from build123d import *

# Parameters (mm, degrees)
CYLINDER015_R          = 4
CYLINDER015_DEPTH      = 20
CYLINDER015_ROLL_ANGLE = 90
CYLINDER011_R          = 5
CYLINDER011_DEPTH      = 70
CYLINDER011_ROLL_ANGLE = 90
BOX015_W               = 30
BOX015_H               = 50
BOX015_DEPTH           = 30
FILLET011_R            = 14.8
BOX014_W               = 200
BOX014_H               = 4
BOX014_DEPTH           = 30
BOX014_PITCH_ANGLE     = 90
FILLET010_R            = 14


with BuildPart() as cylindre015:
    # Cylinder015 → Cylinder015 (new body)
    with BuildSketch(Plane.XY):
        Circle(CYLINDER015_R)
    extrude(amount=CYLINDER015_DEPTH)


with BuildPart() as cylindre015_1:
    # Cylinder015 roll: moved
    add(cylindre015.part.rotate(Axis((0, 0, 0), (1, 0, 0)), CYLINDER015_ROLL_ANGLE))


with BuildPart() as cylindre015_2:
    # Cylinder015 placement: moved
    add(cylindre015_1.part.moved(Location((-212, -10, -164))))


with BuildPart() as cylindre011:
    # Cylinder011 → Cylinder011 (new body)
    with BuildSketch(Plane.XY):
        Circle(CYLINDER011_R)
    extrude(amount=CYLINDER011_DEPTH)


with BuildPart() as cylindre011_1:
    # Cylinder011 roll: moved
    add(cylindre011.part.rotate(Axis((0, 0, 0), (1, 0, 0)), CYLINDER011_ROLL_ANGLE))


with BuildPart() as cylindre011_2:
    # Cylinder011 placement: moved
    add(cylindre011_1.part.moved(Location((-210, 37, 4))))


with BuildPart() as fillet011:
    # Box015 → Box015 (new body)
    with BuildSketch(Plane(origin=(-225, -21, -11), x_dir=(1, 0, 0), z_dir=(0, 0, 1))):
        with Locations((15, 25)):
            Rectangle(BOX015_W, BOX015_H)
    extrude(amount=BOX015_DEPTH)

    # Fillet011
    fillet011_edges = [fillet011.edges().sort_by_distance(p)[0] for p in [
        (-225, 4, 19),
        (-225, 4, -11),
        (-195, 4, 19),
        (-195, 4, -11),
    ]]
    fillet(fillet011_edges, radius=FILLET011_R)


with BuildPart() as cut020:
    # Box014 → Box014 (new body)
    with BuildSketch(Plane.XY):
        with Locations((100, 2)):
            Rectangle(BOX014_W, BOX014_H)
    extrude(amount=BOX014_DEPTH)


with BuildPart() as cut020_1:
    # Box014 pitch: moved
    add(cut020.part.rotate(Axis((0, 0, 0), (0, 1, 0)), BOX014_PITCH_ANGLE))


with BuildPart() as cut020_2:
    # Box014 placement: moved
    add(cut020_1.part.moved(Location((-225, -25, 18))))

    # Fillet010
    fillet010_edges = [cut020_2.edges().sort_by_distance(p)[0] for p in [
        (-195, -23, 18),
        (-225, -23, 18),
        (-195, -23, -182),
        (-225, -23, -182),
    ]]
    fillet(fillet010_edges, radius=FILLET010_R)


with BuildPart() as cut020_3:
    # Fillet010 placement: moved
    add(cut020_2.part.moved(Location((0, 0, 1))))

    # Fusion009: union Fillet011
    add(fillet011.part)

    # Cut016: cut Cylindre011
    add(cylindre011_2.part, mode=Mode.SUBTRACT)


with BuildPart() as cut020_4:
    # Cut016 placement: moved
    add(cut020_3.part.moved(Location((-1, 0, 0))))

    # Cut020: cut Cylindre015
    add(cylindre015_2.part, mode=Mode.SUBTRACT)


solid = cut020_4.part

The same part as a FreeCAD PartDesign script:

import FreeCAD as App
import Part
import Sketcher
from FreeCAD import Vector


def edges_at(feature, points):
    """Names of the edges that pass closest to the given points."""
    edges = feature.Shape.Edges
    near = lambda p: min(range(len(edges)), key=lambda i: edges[i].distToShape(Part.Vertex(*p))[0])
    return sorted({f"Edge{near(p) + 1}" for p in points})


def add_polygon(sketch, points):
    """Adds a closed chain of lines whose ends are joined by coincident constraints."""
    first, n = sketch.GeometryCount, len(points)
    for a, b in zip(points, points[1:] + points[:1]):
        sketch.addGeometry(Part.LineSegment(App.Vector(*a, 0), App.Vector(*b, 0)), False)
    for i in range(n):
        sketch.addConstraint(Sketcher.Constraint("Coincident", first + i, 2, first + (i + 1) % n, 1))

doc = App.newDocument("Part")
body = doc.addObject("PartDesign::Body", "Body")

sketch1 = body.newObject("Sketcher::SketchObject", "Sketch")
sketch1.AttachmentSupport = (doc.getObject("XY_Plane"), [""])
sketch1.MapMode = "FlatFace"
sketch1.addGeometry(Part.Circle(Vector(0, 0, 0), Vector(0, 0, 1), 4), False)
sketch1.addConstraint([
    Sketcher.Constraint("Coincident", 0, 3, -1, 1),
    Sketcher.Constraint("Diameter", 0, 8.0),
])
pad1 = body.newObject("PartDesign::Pad", "Pad")
pad1.Profile = sketch1
pad1.Length = 20
body2 = doc.addObject("PartDesign::Body", "Body001")
doc.recompute()

body.Placement = App.Placement(Vector(0, 0, 0), App.Rotation(Vector(1, 0, 0), 90))
boolean = body2.newObject("PartDesign::Boolean", "Boolean")
boolean.Type = "Fuse"
boolean.addObjects([body])
body3 = doc.addObject("PartDesign::Body", "Body002")
doc.recompute()

body2.Placement = App.Placement(Vector(-212, -10, -164), App.Rotation(Vector(0, 0, 1), 0))
boolean2 = body3.newObject("PartDesign::Boolean", "Boolean001")
boolean2.Type = "Fuse"
boolean2.addObjects([body2])
body4 = doc.addObject("PartDesign::Body", "Body003")

sketch2 = body4.newObject("Sketcher::SketchObject", "Sketch001")
sketch2.AttachmentSupport = (doc.getObject("XY_Plane003"), [""])
sketch2.MapMode = "FlatFace"
sketch2.addGeometry(Part.Circle(Vector(0, 0, 0), Vector(0, 0, 1), 5), False)
sketch2.addConstraint([
    Sketcher.Constraint("Coincident", 0, 3, -1, 1),
    Sketcher.Constraint("Diameter", 0, 10.0),
])
pad2 = body4.newObject("PartDesign::Pad", "Pad001")
pad2.Profile = sketch2
pad2.Length = 70
body5 = doc.addObject("PartDesign::Body", "Body004")
doc.recompute()

body4.Placement = App.Placement(Vector(0, 0, 0), App.Rotation(Vector(1, 0, 0), 90))
boolean3 = body5.newObject("PartDesign::Boolean", "Boolean002")
boolean3.Type = "Fuse"
boolean3.addObjects([body4])
body6 = doc.addObject("PartDesign::Body", "Body005")
doc.recompute()

body5.Placement = App.Placement(Vector(-210, 37, 4), App.Rotation(Vector(0, 0, 1), 0))
boolean4 = body6.newObject("PartDesign::Boolean", "Boolean003")
boolean4.Type = "Fuse"
boolean4.addObjects([body5])
body7 = doc.addObject("PartDesign::Body", "Body006")

sketch3 = body7.newObject("Sketcher::SketchObject", "Sketch002")
sketch3.AttachmentSupport = (doc.getObject("XY_Plane006"), [""])
sketch3.MapMode = "FlatFace"
sketch3.AttachmentOffset = App.Placement(Vector(0, 0, -11), App.Rotation())
add_polygon(sketch3, [(-225, 29), (-225, -21), (-195, -21), (-195, 29)])
sketch3.addConstraint([
    Sketcher.Constraint("Vertical", 0),
    Sketcher.Constraint("Horizontal", 1),
    Sketcher.Constraint("Vertical", 2),
    Sketcher.Constraint("Horizontal", 3),
    Sketcher.Constraint("DistanceX", 1, 1, 1, 2, 30.0),
    Sketcher.Constraint("DistanceY", 0, 2, 0, 1, 50.0),
    Sketcher.Constraint("DistanceX", 0, 2, -1, 1, 225.0),
    Sketcher.Constraint("DistanceY", 0, 2, -1, 1, 21.0),
])
pad3 = body7.newObject("PartDesign::Pad", "Pad002")
pad3.Profile = sketch3
pad3.Length = 30
doc.recompute()

fillet = body7.newObject("PartDesign::Fillet", "Fillet")
fillet.Base = (pad3, edges_at(pad3, [
    (-225, 4, 19),
    (-225, 4, -11),
    (-195, 4, 19),
    (-195, 4, -11),
]))
fillet.Radius = 14.8
body8 = doc.addObject("PartDesign::Body", "Body007")

sketch4 = body8.newObject("Sketcher::SketchObject", "Sketch003")
sketch4.AttachmentSupport = (doc.getObject("XY_Plane007"), [""])
sketch4.MapMode = "FlatFace"
add_polygon(sketch4, [(0, 4), (0, 0), (200, 0), (200, 4)])
sketch4.addConstraint([
    Sketcher.Constraint("Vertical", 0),
    Sketcher.Constraint("Horizontal", 1),
    Sketcher.Constraint("Vertical", 2),
    Sketcher.Constraint("Horizontal", 3),
    Sketcher.Constraint("Coincident", 0, 2, -1, 1),
    Sketcher.Constraint("DistanceX", 1, 1, 1, 2, 200.0),
    Sketcher.Constraint("DistanceY", 0, 2, 0, 1, 4.0),
])
pad4 = body8.newObject("PartDesign::Pad", "Pad003")
pad4.Profile = sketch4
pad4.Length = 30
body9 = doc.addObject("PartDesign::Body", "Body008")
doc.recompute()

body8.Placement = App.Placement(Vector(0, 0, 0), App.Rotation(Vector(0, 1, 0), 90))
boolean5 = body9.newObject("PartDesign::Boolean", "Boolean004")
boolean5.Type = "Fuse"
boolean5.addObjects([body8])
body10 = doc.addObject("PartDesign::Body", "Body009")
doc.recompute()

body9.Placement = App.Placement(Vector(-225, -25, 18), App.Rotation(Vector(0, 0, 1), 0))
boolean6 = body10.newObject("PartDesign::Boolean", "Boolean005")
boolean6.Type = "Fuse"
boolean6.addObjects([body9])
doc.recompute()

fillet2 = body10.newObject("PartDesign::Fillet", "Fillet001")
fillet2.Base = (boolean6, edges_at(boolean6, [
    (-195, -23, 18),
    (-225, -23, 18),
    (-195, -23, -182),
    (-225, -23, -182),
]))
fillet2.Radius = 14
body11 = doc.addObject("PartDesign::Body", "Body010")
doc.recompute()

body10.Placement = App.Placement(Vector(0, 0, 1), App.Rotation(Vector(0, 0, 1), 0))
boolean7 = body11.newObject("PartDesign::Boolean", "Boolean006")
boolean7.Type = "Fuse"
boolean7.addObjects([body10])
doc.recompute()

boolean8 = body11.newObject("PartDesign::Boolean", "Boolean007")
boolean8.Type = "Fuse"
boolean8.addObjects([body7])
doc.recompute()

boolean9 = body11.newObject("PartDesign::Boolean", "Boolean008")
boolean9.Type = "Cut"
boolean9.addObjects([body6])
body12 = doc.addObject("PartDesign::Body", "Body011")
doc.recompute()

body11.Placement = App.Placement(Vector(-1, 0, 0), App.Rotation(Vector(0, 0, 1), 0))
boolean10 = body12.newObject("PartDesign::Boolean", "Boolean009")
boolean10.Type = "Fuse"
boolean10.addObjects([body11])
doc.recompute()

boolean11 = body12.newObject("PartDesign::Boolean", "Boolean010")
boolean11.Type = "Cut"
boolean11.addObjects([body3])

doc.recompute()
